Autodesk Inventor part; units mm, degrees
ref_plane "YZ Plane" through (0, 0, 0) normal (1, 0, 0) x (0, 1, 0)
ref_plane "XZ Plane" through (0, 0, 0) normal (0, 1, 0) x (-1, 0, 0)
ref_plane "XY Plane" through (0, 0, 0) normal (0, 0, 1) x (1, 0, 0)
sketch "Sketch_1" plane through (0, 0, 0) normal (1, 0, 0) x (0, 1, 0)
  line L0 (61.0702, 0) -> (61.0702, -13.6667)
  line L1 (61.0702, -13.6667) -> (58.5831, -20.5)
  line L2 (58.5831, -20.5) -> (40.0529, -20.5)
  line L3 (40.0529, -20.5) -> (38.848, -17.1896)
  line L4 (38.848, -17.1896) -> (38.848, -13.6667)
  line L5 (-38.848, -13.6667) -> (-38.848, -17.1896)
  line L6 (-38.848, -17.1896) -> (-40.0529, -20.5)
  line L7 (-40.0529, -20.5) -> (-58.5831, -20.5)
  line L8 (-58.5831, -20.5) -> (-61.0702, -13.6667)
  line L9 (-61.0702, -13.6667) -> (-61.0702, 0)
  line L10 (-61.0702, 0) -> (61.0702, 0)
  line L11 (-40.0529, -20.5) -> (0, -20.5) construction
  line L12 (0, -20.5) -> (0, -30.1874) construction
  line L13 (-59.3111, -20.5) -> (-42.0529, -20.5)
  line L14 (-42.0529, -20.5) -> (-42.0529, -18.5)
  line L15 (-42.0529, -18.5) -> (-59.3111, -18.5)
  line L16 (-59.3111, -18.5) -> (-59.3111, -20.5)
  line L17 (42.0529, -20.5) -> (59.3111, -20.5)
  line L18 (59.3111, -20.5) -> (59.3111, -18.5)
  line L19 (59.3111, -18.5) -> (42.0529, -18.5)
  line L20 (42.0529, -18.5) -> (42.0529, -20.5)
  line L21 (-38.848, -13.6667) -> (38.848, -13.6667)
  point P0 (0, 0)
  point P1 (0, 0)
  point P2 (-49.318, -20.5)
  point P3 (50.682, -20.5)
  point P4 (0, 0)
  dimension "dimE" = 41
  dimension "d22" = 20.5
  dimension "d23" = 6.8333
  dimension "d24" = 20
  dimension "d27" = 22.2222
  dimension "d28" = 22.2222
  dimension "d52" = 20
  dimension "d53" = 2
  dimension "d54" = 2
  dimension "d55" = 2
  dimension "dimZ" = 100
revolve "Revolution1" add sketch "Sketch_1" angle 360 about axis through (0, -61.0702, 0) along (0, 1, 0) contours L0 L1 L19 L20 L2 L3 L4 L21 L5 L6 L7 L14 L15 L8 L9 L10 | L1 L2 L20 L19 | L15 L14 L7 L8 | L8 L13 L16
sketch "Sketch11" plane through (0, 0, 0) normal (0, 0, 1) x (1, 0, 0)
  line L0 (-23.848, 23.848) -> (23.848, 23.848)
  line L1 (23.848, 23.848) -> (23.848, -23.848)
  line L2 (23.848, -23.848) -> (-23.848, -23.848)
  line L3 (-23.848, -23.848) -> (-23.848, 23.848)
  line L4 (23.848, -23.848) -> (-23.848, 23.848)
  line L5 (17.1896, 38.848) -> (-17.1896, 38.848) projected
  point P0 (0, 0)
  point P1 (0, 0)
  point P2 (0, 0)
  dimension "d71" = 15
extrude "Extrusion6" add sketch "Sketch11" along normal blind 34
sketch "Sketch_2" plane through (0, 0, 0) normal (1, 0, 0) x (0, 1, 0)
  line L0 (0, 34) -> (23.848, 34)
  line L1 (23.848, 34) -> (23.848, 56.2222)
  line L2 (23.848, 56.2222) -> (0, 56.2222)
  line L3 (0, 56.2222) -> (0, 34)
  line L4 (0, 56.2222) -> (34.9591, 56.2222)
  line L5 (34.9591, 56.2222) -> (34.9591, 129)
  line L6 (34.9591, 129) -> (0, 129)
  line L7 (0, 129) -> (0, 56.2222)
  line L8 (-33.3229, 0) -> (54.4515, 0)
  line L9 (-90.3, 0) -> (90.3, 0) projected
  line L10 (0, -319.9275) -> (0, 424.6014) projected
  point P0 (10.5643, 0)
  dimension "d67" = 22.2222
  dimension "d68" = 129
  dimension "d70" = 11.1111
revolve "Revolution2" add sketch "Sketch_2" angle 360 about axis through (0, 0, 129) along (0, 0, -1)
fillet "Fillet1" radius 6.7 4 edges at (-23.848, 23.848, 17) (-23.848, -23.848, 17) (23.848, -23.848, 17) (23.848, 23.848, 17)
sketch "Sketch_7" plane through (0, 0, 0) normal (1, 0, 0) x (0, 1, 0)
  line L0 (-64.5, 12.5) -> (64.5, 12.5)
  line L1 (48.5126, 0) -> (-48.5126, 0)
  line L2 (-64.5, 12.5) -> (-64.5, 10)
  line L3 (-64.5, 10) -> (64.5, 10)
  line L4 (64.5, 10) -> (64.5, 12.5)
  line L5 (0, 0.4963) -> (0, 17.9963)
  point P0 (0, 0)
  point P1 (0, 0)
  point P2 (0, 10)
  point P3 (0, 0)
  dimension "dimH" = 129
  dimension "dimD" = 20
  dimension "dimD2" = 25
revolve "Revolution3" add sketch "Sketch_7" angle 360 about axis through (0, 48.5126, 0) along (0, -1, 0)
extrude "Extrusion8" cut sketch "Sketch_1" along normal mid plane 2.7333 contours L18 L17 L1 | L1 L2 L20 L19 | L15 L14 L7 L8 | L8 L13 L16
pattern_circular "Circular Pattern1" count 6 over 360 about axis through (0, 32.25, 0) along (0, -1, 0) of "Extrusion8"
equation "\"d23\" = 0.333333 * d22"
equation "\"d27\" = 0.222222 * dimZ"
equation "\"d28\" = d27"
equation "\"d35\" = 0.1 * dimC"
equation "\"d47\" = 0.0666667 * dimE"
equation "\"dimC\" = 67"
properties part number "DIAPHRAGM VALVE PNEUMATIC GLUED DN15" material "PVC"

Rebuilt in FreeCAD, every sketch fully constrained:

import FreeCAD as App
import Part
import Sketcher
from FreeCAD import Vector
Q = App.Units.Quantity


def edges_at(feature, points):
    """Names of the edges that pass closest to the given points."""
    edges = feature.Shape.Edges
    near = lambda p: min(range(len(edges)), key=lambda i: edges[i].distToShape(Part.Vertex(*p))[0])
    return sorted({f"Edge{near(p) + 1}" for p in points})

doc = App.newDocument("Part")
body = doc.addObject("PartDesign::Body", "Body")

sketch1 = body.newObject("Sketcher::SketchObject", "Sketch")
sketch1.AttachmentSupport = (doc.getObject("YZ_Plane"), [""])
sketch1.MapMode = "FlatFace"
sketch1.addGeometry(Part.LineSegment(Vector(61.0702, -13.6667, 0), Vector(61.0702, 0, 0)), False)
sketch1.addGeometry(Part.LineSegment(Vector(61.0702, 0, 0), Vector(-61.0702, 0, 0)), False)
sketch1.addGeometry(Part.LineSegment(Vector(-61.0702, 0, 0), Vector(-61.0702, -13.6667, 0)), False)
sketch1.addGeometry(Part.LineSegment(Vector(-61.0702, -13.6667, 0), Vector(-59.311043, -18.499979, 0)), False)
sketch1.addGeometry(Part.LineSegment(Vector(-59.3111, -18.5, 0), Vector(-59.3111, -20.5, 0)), False)
sketch1.addGeometry(Part.LineSegment(Vector(-59.3111, -20.5, 0), Vector(-40.0529, -20.5, 0)), False)
sketch1.addGeometry(Part.LineSegment(Vector(-40.0529, -20.5, 0), Vector(-38.848, -17.1896, 0)), False)
sketch1.addGeometry(Part.LineSegment(Vector(-38.848, -17.1896, 0), Vector(-38.848, -13.6667, 0)), False)
sketch1.addGeometry(Part.LineSegment(Vector(-38.848, -13.6667, 0), Vector(38.848, -13.6667, 0)), False)
sketch1.addGeometry(Part.LineSegment(Vector(38.848, -13.6667, 0), Vector(38.848, -17.1896, 0)), False)
sketch1.addGeometry(Part.LineSegment(Vector(38.848, -17.1896, 0), Vector(40.0529, -20.5, 0)), False)
sketch1.addGeometry(Part.LineSegment(Vector(40.0529, -20.5, 0), Vector(58.5831, -20.5, 0)), False)
sketch1.addGeometry(Part.LineSegment(Vector(58.5831, -20.5, 0), Vector(61.0702, -13.6667, 0)), False)
sketch1.addConstraint(Sketcher.Constraint("Coincident", 0, 2, 1, 1))
sketch1.addConstraint(Sketcher.Constraint("Coincident", 1, 2, 2, 1))
sketch1.addConstraint(Sketcher.Constraint("Coincident", 2, 2, 3, 1))
sketch1.addConstraint(Sketcher.Constraint("Coincident", 3, 2, 4, 1))
sketch1.addConstraint(Sketcher.Constraint("Coincident", 4, 2, 5, 1))
sketch1.addConstraint(Sketcher.Constraint("Coincident", 5, 2, 6, 1))
sketch1.addConstraint(Sketcher.Constraint("Coincident", 6, 2, 7, 1))
sketch1.addConstraint(Sketcher.Constraint("Coincident", 7, 2, 8, 1))
sketch1.addConstraint(Sketcher.Constraint("Coincident", 8, 2, 9, 1))
sketch1.addConstraint(Sketcher.Constraint("Coincident", 9, 2, 10, 1))
sketch1.addConstraint(Sketcher.Constraint("Coincident", 10, 2, 11, 1))
sketch1.addConstraint(Sketcher.Constraint("Coincident", 11, 2, 12, 1))
sketch1.addConstraint(Sketcher.Constraint("Coincident", 12, 2, 0, 1))
sketch1.addConstraint(Sketcher.Constraint("Vertical", 0))
sketch1.addConstraint(Sketcher.Constraint("Horizontal", 1))
sketch1.addConstraint(Sketcher.Constraint("Vertical", 2))
sketch1.addConstraint(Sketcher.Constraint("Vertical", 4))
sketch1.addConstraint(Sketcher.Constraint("Horizontal", 5))
sketch1.addConstraint(Sketcher.Constraint("Vertical", 7))
sketch1.addConstraint(Sketcher.Constraint("Horizontal", 8))
sketch1.addConstraint(Sketcher.Constraint("Vertical", 9))
sketch1.addConstraint(Sketcher.Constraint("Horizontal", 11))
sketch1.addConstraint(Sketcher.Constraint("Symmetric", 0, 2, 1, 2, -1, 1))
sketch1.addConstraint(Sketcher.Constraint("Symmetric", 6, 2, 9, 2, -2))
sketch1.addConstraint(Sketcher.Constraint("Symmetric", 5, 2, 10, 2, -2))
sketch1.addConstraint(Sketcher.Constraint("Parallel", 3, 10))
sketch1.addConstraint(Sketcher.Constraint("Parallel", 6, 12))
sketch1.addConstraint(Sketcher.Constraint("Horizontal", 2, 2, 7, 2))
sketch1.addConstraint(Sketcher.Constraint("Horizontal", 8, 2, 12, 2))
sketch1.addConstraint(Sketcher.Constraint("DistanceY", 4, 2, 4, 1, 2.0))
sketch1.addConstraint(Sketcher.Constraint("DistanceY", 4, 2, -1, 1, 20.5))
sketch1.addConstraint(Sketcher.Constraint("Angle", 3, Q("-70.0001 deg")))
sketch1.addConstraint(Sketcher.Constraint("DistanceY", 4, 2, 2, 2, 6.8333))
sketch1.addConstraint(Sketcher.Constraint("DistanceX", 2, 2, 6, 2, 22.2222))
sketch1.addConstraint(Sketcher.Constraint("DistanceX", 8, 1, 8, 2, 77.696))
sketch1.addConstraint(Sketcher.Constraint("DistanceY", 7, 1, 7, 2, 3.523))
revolution = body.newObject("PartDesign::Revolution", "Revolution")
revolution.Profile = sketch1
revolution.ReferenceAxis = (sketch1, ["H_Axis"])
revolution.Angle = 360

sketch2 = body.newObject("Sketcher::SketchObject", "Sketch001")
sketch2.AttachmentSupport = (doc.getObject("XY_Plane"), [""])
sketch2.MapMode = "FlatFace"
sketch2.addGeometry(Part.LineSegment(Vector(-23.848, -23.848, 0), Vector(23.848, -23.848, 0)), False)
sketch2.addGeometry(Part.LineSegment(Vector(23.848, -23.848, 0), Vector(23.848, 23.848, 0)), False)
sketch2.addGeometry(Part.LineSegment(Vector(23.848, 23.848, 0), Vector(-23.848, 23.848, 0)), False)
sketch2.addGeometry(Part.LineSegment(Vector(-23.848, 23.848, 0), Vector(-23.848, -23.848, 0)), False)
sketch2.addConstraint(Sketcher.Constraint("Coincident", 0, 2, 1, 1))
sketch2.addConstraint(Sketcher.Constraint("Coincident", 1, 2, 2, 1))
sketch2.addConstraint(Sketcher.Constraint("Coincident", 2, 2, 3, 1))
sketch2.addConstraint(Sketcher.Constraint("Coincident", 3, 2, 0, 1))
sketch2.addConstraint(Sketcher.Constraint("Horizontal", 0))
sketch2.addConstraint(Sketcher.Constraint("Vertical", 1))
sketch2.addConstraint(Sketcher.Constraint("Horizontal", 2))
sketch2.addConstraint(Sketcher.Constraint("Vertical", 3))
sketch2.addConstraint(Sketcher.Constraint("Symmetric", 0, 2, 2, 2, -1, 1))
sketch2.addConstraint(Sketcher.Constraint("Equal", 2, 1))
sketch2.addConstraint(Sketcher.Constraint("DistanceX", 0, 1, 0, 2, 47.696))
pad1 = body.newObject("PartDesign::Pad", "Pad")
pad1.Profile = sketch2
pad1.Length = 34

sketch3 = body.newObject("Sketcher::SketchObject", "Sketch002")
sketch3.AttachmentSupport = (doc.getObject("YZ_Plane"), [""])
sketch3.MapMode = "FlatFace"
sketch3.addGeometry(Part.LineSegment(Vector(0, 34, 0), Vector(23.848, 34, 0)), False)
sketch3.addGeometry(Part.LineSegment(Vector(23.848, 34, 0), Vector(23.848, 56.2222, 0)), False)
sketch3.addGeometry(Part.LineSegment(Vector(23.848, 56.2222, 0), Vector(34.9591, 56.2222, 0)), False)
sketch3.addGeometry(Part.LineSegment(Vector(34.9591, 56.2222, 0), Vector(34.9591, 129, 0)), False)
sketch3.addGeometry(Part.LineSegment(Vector(34.9591, 129, 0), Vector(0, 129, 0)), False)
sketch3.addGeometry(Part.LineSegment(Vector(0, 129, 0), Vector(0, 34, 0)), False)
sketch3.addConstraint(Sketcher.Constraint("Coincident", 0, 2, 1, 1))
sketch3.addConstraint(Sketcher.Constraint("Coincident", 1, 2, 2, 1))
sketch3.addConstraint(Sketcher.Constraint("Coincident", 2, 2, 3, 1))
sketch3.addConstraint(Sketcher.Constraint("Coincident", 3, 2, 4, 1))
sketch3.addConstraint(Sketcher.Constraint("Coincident", 4, 2, 5, 1))
sketch3.addConstraint(Sketcher.Constraint("Coincident", 5, 2, 0, 1))
sketch3.addConstraint(Sketcher.Constraint("Horizontal", 0))
sketch3.addConstraint(Sketcher.Constraint("Vertical", 1))
sketch3.addConstraint(Sketcher.Constraint("Horizontal", 2))
sketch3.addConstraint(Sketcher.Constraint("Vertical", 3))
sketch3.addConstraint(Sketcher.Constraint("Horizontal", 4))
sketch3.addConstraint(Sketcher.Constraint("Vertical", 5))
sketch3.addConstraint(Sketcher.Constraint("PointOnObject", 4, 2, -2))
sketch3.addConstraint(Sketcher.Constraint("DistanceY", -1, 1, 3, 2, 129.0))
sketch3.addConstraint(Sketcher.Constraint("DistanceX", 2, 1, 2, 2, 11.111))
sketch3.addConstraint(Sketcher.Constraint("DistanceY", 5, 2, 5, 1, 95.0))
sketch3.addConstraint(Sketcher.Constraint("DistanceY", 1, 1, 1, 2, 22.2222))
sketch3.addConstraint(Sketcher.Constraint("DistanceX", 0, 1, 0, 2, 23.848))
revolution2 = body.newObject("PartDesign::Revolution", "Revolution001")
revolution2.Profile = sketch3
revolution2.ReferenceAxis = (sketch3, ["V_Axis"])
revolution2.Angle = 360
doc.recompute()

fillet = body.newObject("PartDesign::Fillet", "Fillet")
fillet.Base = (revolution2, edges_at(revolution2, [
    (-23.848, 23.848, 17),
    (-23.848, -23.848, 17),
    (23.848, -23.848, 17),
    (23.848, 23.848, 17),
]))
fillet.Radius = 6.7

sketch4 = body.newObject("Sketcher::SketchObject", "Sketch003")
sketch4.AttachmentSupport = (doc.getObject("YZ_Plane"), [""])
sketch4.MapMode = "FlatFace"
sketch4.addGeometry(Part.LineSegment(Vector(-64.5, 12.5, 0), Vector(-64.5, 10, 0)), False)
sketch4.addGeometry(Part.LineSegment(Vector(-64.5, 10, 0), Vector(64.5, 10, 0)), False)
sketch4.addGeometry(Part.LineSegment(Vector(64.5, 10, 0), Vector(64.5, 12.5, 0)), False)
sketch4.addGeometry(Part.LineSegment(Vector(64.5, 12.5, 0), Vector(-64.5, 12.5, 0)), False)
sketch4.addConstraint(Sketcher.Constraint("Coincident", 0, 2, 1, 1))
sketch4.addConstraint(Sketcher.Constraint("Coincident", 1, 2, 2, 1))
sketch4.addConstraint(Sketcher.Constraint("Coincident", 2, 2, 3, 1))
sketch4.addConstraint(Sketcher.Constraint("Coincident", 3, 2, 0, 1))
sketch4.addConstraint(Sketcher.Constraint("Vertical", 0))
sketch4.addConstraint(Sketcher.Constraint("Horizontal", 1))
sketch4.addConstraint(Sketcher.Constraint("Vertical", 2))
sketch4.addConstraint(Sketcher.Constraint("Horizontal", 3))
sketch4.addConstraint(Sketcher.Constraint("DistanceX", 1, 1, 1, 2, 129.0))
sketch4.addConstraint(Sketcher.Constraint("DistanceY", 0, 2, 0, 1, 2.5))
sketch4.addConstraint(Sketcher.Constraint("DistanceY", -1, 1, 0, 2, 10.0))
sketch4.addConstraint(Sketcher.Constraint("DistanceX", 0, 2, -1, 1, 64.5))
revolution3 = body.newObject("PartDesign::Revolution", "Revolution002")
revolution3.Profile = sketch4
revolution3.ReferenceAxis = (sketch4, ["H_Axis"])
revolution3.Angle = 360

sketch5 = body.newObject("Sketcher::SketchObject", "Sketch004")
sketch5.AttachmentSupport = (doc.getObject("YZ_Plane"), [""])
sketch5.MapMode = "FlatFace"
sketch5.addGeometry(Part.LineSegment(Vector(59.3111, -20.5, 0), Vector(59.3111, -18.5, 0)), False)
sketch5.addGeometry(Part.LineSegment(Vector(59.3111, -18.5, 0), Vector(42.0529, -18.5, 0)), False)
sketch5.addGeometry(Part.LineSegment(Vector(42.0529, -18.5, 0), Vector(42.0529, -20.5, 0)), False)
sketch5.addGeometry(Part.LineSegment(Vector(42.0529, -20.5, 0), Vector(59.3111, -20.5, 0)), False)
sketch5.addGeometry(Part.LineSegment(Vector(-42.0529, -18.5, 0), Vector(-59.3111, -18.5, 0)), False)
sketch5.addGeometry(Part.LineSegment(Vector(-59.3111, -18.5, 0), Vector(-59.3111, -20.5, 0)), False)
sketch5.addGeometry(Part.LineSegment(Vector(-59.3111, -20.5, 0), Vector(-42.0529, -20.5, 0)), False)
sketch5.addGeometry(Part.LineSegment(Vector(-42.0529, -20.5, 0), Vector(-42.0529, -18.5, 0)), False)
sketch5.addConstraint(Sketcher.Constraint("Coincident", 0, 2, 1, 1))
sketch5.addConstraint(Sketcher.Constraint("Coincident", 1, 2, 2, 1))
sketch5.addConstraint(Sketcher.Constraint("Coincident", 2, 2, 3, 1))
sketch5.addConstraint(Sketcher.Constraint("Coincident", 3, 2, 0, 1))
sketch5.addConstraint(Sketcher.Constraint("Coincident", 4, 2, 5, 1))
sketch5.addConstraint(Sketcher.Constraint("Coincident", 5, 2, 6, 1))
sketch5.addConstraint(Sketcher.Constraint("Coincident", 6, 2, 7, 1))
sketch5.addConstraint(Sketcher.Constraint("Coincident", 7, 2, 4, 1))
sketch5.addConstraint(Sketcher.Constraint("Vertical", 0))
sketch5.addConstraint(Sketcher.Constraint("Horizontal", 1))
sketch5.addConstraint(Sketcher.Constraint("Vertical", 2))
sketch5.addConstraint(Sketcher.Constraint("Horizontal", 3))
sketch5.addConstraint(Sketcher.Constraint("Horizontal", 4))
sketch5.addConstraint(Sketcher.Constraint("Vertical", 5))
sketch5.addConstraint(Sketcher.Constraint("Horizontal", 6))
sketch5.addConstraint(Sketcher.Constraint("Vertical", 7))
sketch5.addConstraint(Sketcher.Constraint("Symmetric", 0, 2, 4, 2, -2))
sketch5.addConstraint(Sketcher.Constraint("Symmetric", 2, 2, 6, 2, -2))
sketch5.addConstraint(Sketcher.Constraint("DistanceY", 0, 1, 0, 2, 2.0))
sketch5.addConstraint(Sketcher.Constraint("DistanceY", 2, 2, -1, 1, 20.5))
sketch5.addConstraint(Sketcher.Constraint("DistanceX", 1, 2, 1, 1, 17.2582))
sketch5.addConstraint(Sketcher.Constraint("DistanceX", -1, 1, 0, 2, 59.311))
pocket1 = body.newObject("PartDesign::Pocket", "Pocket")
pocket1.Profile = sketch5
pocket1.Length = 2.7333
pocket1.Midplane = True
doc.recompute()

polarpattern = body.newObject("PartDesign::PolarPattern", "PolarPattern")
polarpattern.Originals = [pocket1]
polarpattern.Axis = (doc.getObject("Y_Axis"), [""])
polarpattern.Angle = 360
polarpattern.Occurrences = 6
body.Tip = polarpattern

doc.recompute()
